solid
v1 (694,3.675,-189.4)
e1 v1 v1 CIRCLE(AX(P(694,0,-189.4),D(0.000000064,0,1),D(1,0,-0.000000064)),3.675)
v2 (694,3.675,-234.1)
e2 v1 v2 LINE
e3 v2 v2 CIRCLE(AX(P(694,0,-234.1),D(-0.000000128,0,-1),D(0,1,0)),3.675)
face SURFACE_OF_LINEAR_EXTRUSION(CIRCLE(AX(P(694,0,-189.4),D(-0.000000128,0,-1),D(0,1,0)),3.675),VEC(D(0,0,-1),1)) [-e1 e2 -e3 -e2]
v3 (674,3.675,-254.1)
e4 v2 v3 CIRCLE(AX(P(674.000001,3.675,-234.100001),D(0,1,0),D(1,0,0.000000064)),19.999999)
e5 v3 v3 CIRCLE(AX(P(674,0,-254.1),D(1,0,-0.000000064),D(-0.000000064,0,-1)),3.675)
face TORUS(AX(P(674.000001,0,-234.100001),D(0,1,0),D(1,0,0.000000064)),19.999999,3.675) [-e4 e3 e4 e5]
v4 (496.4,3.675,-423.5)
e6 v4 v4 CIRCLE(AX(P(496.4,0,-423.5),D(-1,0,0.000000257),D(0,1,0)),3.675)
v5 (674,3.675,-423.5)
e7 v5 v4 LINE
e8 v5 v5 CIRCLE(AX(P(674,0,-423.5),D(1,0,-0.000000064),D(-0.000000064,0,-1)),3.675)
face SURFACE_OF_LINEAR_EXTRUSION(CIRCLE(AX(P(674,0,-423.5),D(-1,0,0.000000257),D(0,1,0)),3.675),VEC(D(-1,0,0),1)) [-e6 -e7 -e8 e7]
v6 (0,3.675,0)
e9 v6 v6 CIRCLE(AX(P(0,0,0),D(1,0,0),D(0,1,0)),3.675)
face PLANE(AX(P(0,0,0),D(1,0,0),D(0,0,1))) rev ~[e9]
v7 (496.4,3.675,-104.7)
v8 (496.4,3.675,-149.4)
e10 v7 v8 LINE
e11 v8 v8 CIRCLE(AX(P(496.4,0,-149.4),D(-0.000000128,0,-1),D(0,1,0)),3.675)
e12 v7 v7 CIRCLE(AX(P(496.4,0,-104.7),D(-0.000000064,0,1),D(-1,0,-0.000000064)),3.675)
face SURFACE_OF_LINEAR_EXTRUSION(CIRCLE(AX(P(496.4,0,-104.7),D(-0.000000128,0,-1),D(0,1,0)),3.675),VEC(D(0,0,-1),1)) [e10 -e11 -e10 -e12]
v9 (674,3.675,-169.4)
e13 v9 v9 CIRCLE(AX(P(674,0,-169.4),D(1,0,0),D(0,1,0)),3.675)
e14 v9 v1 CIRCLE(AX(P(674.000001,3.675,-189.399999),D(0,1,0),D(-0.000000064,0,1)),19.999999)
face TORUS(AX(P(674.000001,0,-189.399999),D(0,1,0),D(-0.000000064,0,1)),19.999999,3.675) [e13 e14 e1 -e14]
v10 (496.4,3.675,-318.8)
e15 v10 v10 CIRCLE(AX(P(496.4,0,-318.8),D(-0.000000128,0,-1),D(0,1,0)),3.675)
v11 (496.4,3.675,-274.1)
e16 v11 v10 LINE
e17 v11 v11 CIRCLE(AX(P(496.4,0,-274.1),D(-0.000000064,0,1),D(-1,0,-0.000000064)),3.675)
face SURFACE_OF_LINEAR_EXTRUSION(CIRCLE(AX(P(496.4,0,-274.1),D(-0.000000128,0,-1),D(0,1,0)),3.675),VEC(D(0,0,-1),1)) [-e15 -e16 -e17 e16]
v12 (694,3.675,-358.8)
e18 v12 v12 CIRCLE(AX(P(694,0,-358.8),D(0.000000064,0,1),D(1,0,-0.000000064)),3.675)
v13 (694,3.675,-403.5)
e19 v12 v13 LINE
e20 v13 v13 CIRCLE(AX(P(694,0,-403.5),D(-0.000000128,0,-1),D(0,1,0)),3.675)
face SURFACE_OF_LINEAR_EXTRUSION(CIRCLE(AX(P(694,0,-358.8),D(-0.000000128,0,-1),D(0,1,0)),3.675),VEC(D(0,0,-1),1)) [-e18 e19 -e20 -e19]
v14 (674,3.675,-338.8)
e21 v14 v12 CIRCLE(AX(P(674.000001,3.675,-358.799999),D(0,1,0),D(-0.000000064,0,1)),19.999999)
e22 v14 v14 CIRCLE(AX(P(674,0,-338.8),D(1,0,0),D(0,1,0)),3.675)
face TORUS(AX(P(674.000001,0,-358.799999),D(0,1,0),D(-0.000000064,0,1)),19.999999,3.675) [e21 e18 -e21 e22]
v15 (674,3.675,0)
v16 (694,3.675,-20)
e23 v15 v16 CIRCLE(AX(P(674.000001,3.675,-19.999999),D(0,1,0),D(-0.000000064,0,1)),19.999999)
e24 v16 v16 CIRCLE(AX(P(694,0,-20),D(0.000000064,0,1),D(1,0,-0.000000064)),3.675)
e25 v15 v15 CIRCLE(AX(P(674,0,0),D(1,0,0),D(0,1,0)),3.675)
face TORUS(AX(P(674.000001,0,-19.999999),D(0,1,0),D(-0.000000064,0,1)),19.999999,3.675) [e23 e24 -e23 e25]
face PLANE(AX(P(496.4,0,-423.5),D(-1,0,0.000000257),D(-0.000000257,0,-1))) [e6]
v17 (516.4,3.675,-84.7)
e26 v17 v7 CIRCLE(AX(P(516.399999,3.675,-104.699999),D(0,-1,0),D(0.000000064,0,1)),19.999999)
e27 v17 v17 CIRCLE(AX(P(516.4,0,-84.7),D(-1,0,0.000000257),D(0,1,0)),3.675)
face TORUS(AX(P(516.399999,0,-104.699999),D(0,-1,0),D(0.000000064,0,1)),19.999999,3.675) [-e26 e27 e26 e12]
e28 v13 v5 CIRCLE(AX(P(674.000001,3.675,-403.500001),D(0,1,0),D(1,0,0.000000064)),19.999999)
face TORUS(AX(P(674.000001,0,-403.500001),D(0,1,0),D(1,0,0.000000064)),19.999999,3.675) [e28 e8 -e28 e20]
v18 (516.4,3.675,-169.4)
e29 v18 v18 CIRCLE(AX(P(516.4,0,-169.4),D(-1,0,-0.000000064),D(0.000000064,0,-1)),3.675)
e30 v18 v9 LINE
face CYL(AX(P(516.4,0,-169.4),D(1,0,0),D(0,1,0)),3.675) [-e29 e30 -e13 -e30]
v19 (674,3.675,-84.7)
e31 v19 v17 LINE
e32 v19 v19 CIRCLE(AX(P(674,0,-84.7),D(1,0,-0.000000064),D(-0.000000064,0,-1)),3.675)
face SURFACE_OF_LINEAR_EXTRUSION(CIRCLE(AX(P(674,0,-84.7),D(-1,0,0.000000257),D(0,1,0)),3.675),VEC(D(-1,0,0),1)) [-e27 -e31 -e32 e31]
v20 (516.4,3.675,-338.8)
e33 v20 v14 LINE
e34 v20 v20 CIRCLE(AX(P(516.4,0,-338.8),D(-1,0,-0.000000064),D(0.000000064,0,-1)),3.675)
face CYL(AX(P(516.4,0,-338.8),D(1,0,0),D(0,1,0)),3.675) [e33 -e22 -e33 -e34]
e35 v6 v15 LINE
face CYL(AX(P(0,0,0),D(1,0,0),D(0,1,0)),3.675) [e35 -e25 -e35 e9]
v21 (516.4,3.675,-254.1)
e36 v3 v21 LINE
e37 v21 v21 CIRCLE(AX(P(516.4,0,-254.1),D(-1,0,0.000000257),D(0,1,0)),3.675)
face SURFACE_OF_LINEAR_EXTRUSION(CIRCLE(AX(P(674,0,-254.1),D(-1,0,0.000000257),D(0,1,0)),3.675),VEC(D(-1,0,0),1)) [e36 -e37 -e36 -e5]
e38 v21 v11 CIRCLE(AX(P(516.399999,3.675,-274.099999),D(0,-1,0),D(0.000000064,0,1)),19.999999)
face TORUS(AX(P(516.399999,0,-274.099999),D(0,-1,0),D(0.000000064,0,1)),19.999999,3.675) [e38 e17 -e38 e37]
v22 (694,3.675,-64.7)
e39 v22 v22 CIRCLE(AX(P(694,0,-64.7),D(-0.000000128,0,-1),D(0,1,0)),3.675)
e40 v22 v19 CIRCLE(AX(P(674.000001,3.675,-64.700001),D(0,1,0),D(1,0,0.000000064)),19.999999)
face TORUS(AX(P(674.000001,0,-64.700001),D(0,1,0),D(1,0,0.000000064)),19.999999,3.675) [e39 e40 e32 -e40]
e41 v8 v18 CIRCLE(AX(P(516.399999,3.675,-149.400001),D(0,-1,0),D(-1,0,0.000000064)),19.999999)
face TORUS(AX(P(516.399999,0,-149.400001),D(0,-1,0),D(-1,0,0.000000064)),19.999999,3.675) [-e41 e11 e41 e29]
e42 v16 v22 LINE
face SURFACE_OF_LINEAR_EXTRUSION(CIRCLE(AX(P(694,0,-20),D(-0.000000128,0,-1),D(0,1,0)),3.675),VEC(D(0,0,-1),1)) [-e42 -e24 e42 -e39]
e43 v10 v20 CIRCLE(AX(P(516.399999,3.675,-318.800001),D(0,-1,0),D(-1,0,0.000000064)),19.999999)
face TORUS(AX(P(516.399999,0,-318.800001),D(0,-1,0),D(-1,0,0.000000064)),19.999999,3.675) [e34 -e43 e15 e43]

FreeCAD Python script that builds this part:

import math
import FreeCAD as App
import Part
import Sketcher

doc = App.newDocument("Part")
body = doc.addObject("PartDesign::Body", "Body")

# Sketch on YZ plane
sketch1 = body.newObject("Sketcher::SketchObject", "Sketch")
sketch1.AttachmentSupport = (doc.getObject("YZ_Plane"), [""])
sketch1.MapMode = "FlatFace"
sketch1.addGeometry(Part.Circle(App.Vector(0, 0, 0), App.Vector(0, 0, 1), 3.7), False)
sketch1.addConstraint([
    Sketcher.Constraint("Coincident", 0, 3, -1, 1),
    Sketcher.Constraint("Diameter", 0, 7.35),
])

# Sketch on XZ plane
sketch2 = body.newObject("Sketcher::SketchObject", "Sketch001")
sketch2.AttachmentSupport = (doc.getObject("XZ_Plane"), [""])
sketch2.MapMode = "FlatFace"
sketch2.addGeometry([
    Part.LineSegment(App.Vector(0, 0, 0), App.Vector(674, 0, 0)),  # 0
    Part.ArcOfCircle(Part.Circle(App.Vector(674, -20, 0), App.Vector(0, 0, 1), 20), math.radians(0), math.radians(90)),  # 1
    Part.LineSegment(App.Vector(694, -20, 0), App.Vector(694, -65, 0)),  # 2
    Part.ArcOfCircle(Part.Circle(App.Vector(674, -65, 0), App.Vector(0, 0, 1), 20), math.radians(-90), math.radians(0)),  # 3
    Part.LineSegment(App.Vector(674, -85, 0), App.Vector(516, -85, 0)),  # 4
    Part.ArcOfCircle(Part.Circle(App.Vector(516, -105, 0), App.Vector(0, 0, 1), 20), math.radians(90), math.radians(180)),  # 5
    Part.LineSegment(App.Vector(496, -105, 0), App.Vector(496, -149, 0)),  # 6
    Part.ArcOfCircle(Part.Circle(App.Vector(516, -149, 0), App.Vector(0, 0, 1), 20), math.radians(180), math.radians(270)),  # 7
    Part.LineSegment(App.Vector(516, -169, 0), App.Vector(674, -169, 0)),  # 8
    Part.ArcOfCircle(Part.Circle(App.Vector(674, -189, 0), App.Vector(0, 0, 1), 20), math.radians(0), math.radians(90)),  # 9
    Part.LineSegment(App.Vector(694, -189, 0), App.Vector(694, -234, 0)),  # 10
    Part.ArcOfCircle(Part.Circle(App.Vector(674, -234, 0), App.Vector(0, 0, 1), 20), math.radians(-90), math.radians(0)),  # 11
    Part.LineSegment(App.Vector(674, -254, 0), App.Vector(516, -254, 0)),  # 12
    Part.ArcOfCircle(Part.Circle(App.Vector(516, -274, 0), App.Vector(0, 0, 1), 20), math.radians(90), math.radians(180)),  # 13
    Part.LineSegment(App.Vector(496, -274, 0), App.Vector(496, -319, 0)),  # 14
    Part.ArcOfCircle(Part.Circle(App.Vector(516, -319, 0), App.Vector(0, 0, 1), 20), math.radians(180), math.radians(270)),  # 15
    Part.LineSegment(App.Vector(516, -339, 0), App.Vector(674, -339, 0)),  # 16
    Part.ArcOfCircle(Part.Circle(App.Vector(674, -359, 0), App.Vector(0, 0, 1), 20), math.radians(0), math.radians(90)),  # 17
    Part.LineSegment(App.Vector(694, -359, 0), App.Vector(694, -404, 0)),  # 18
    Part.ArcOfCircle(Part.Circle(App.Vector(674, -404, 0), App.Vector(0, 0, 1), 20), math.radians(-90), math.radians(0)),  # 19
    Part.LineSegment(App.Vector(674, -424, 0), App.Vector(496, -424, 0)),  # 20
], False)
sketch2.addConstraint([
    Sketcher.Constraint("Tangent", 0, 2, 1, 2),
    Sketcher.Constraint("Tangent", 1, 1, 2, 1),
    Sketcher.Constraint("Tangent", 2, 2, 3, 2),
    Sketcher.Constraint("Tangent", 3, 1, 4, 1),
    Sketcher.Constraint("Tangent", 4, 2, 5, 1),
    Sketcher.Constraint("Tangent", 5, 2, 6, 1),
    Sketcher.Constraint("Tangent", 6, 2, 7, 1),
    Sketcher.Constraint("Tangent", 7, 2, 8, 1),
    Sketcher.Constraint("Tangent", 8, 2, 9, 2),
    Sketcher.Constraint("Tangent", 9, 1, 10, 1),
    Sketcher.Constraint("Tangent", 10, 2, 11, 2),
    Sketcher.Constraint("Tangent", 11, 1, 12, 1),
    Sketcher.Constraint("Tangent", 12, 2, 13, 1),
    Sketcher.Constraint("Tangent", 13, 2, 14, 1),
    Sketcher.Constraint("Tangent", 14, 2, 15, 1),
    Sketcher.Constraint("Tangent", 15, 2, 16, 1),
    Sketcher.Constraint("Tangent", 16, 2, 17, 2),
    Sketcher.Constraint("Tangent", 17, 1, 18, 1),
    Sketcher.Constraint("Tangent", 18, 2, 19, 2),
    Sketcher.Constraint("Tangent", 19, 1, 20, 1),
    Sketcher.Constraint("Horizontal", 0),
    Sketcher.Constraint("Vertical", 2),
    Sketcher.Constraint("Horizontal", 4),
    Sketcher.Constraint("Vertical", 6),
    Sketcher.Constraint("Horizontal", 8),
    Sketcher.Constraint("Vertical", 10),
    Sketcher.Constraint("Horizontal", 12),
    Sketcher.Constraint("Vertical", 14),
    Sketcher.Constraint("Horizontal", 16),
    Sketcher.Constraint("Vertical", 18),
    Sketcher.Constraint("Horizontal", 20),
    Sketcher.Constraint("Coincident", 0, 1, -1, 1),
    Sketcher.Constraint("Equal", 1, 3),
    Sketcher.Constraint("Equal", 3, 5),
    Sketcher.Constraint("Equal", 5, 7),
    Sketcher.Constraint("Equal", 7, 9),
    Sketcher.Constraint("Equal", 9, 11),
    Sketcher.Constraint("Equal", 11, 13),
    Sketcher.Constraint("Equal", 13, 15),
    Sketcher.Constraint("Equal", 15, 17),
    Sketcher.Constraint("Equal", 17, 19),
    Sketcher.Constraint("Vertical", 3, 3, 9, 3),
    Sketcher.Constraint("Vertical", 7, 3, 13, 3),
    Sketcher.Constraint("Vertical", 11, 3, 17, 3),
    Sketcher.Constraint("Vertical", 14, 2, 20, 2),
    Sketcher.Constraint("Equal", 2, 6),
    Sketcher.Constraint("Equal", 6, 10),
    Sketcher.Constraint("Equal", 10, 14),
    Sketcher.Constraint("Equal", 14, 18),
    Sketcher.Constraint("Radius", 1, 19.999999),
    Sketcher.Constraint("DistanceX", 0, 1, 0, 2, 674.0),
    Sketcher.Constraint("DistanceX", 4, 2, 4, 1, 157.6),
    Sketcher.Constraint("DistanceY", 2, 2, 2, 1, 44.7),
])
doc.recompute()

additivepipe = body.newObject("PartDesign::AdditivePipe", "AdditivePipe")
additivepipe.Profile = sketch1
additivepipe.Spine = (sketch2, ["Edge1", "Edge2", "Edge3", "Edge4", "Edge5", "Edge6", "Edge7", "Edge8", "Edge9", "Edge10", "Edge11", "Edge12", "Edge13", "Edge14", "Edge15", "Edge16", "Edge17", "Edge18", "Edge19", "Edge20", "Edge21"])

doc.recompute()
